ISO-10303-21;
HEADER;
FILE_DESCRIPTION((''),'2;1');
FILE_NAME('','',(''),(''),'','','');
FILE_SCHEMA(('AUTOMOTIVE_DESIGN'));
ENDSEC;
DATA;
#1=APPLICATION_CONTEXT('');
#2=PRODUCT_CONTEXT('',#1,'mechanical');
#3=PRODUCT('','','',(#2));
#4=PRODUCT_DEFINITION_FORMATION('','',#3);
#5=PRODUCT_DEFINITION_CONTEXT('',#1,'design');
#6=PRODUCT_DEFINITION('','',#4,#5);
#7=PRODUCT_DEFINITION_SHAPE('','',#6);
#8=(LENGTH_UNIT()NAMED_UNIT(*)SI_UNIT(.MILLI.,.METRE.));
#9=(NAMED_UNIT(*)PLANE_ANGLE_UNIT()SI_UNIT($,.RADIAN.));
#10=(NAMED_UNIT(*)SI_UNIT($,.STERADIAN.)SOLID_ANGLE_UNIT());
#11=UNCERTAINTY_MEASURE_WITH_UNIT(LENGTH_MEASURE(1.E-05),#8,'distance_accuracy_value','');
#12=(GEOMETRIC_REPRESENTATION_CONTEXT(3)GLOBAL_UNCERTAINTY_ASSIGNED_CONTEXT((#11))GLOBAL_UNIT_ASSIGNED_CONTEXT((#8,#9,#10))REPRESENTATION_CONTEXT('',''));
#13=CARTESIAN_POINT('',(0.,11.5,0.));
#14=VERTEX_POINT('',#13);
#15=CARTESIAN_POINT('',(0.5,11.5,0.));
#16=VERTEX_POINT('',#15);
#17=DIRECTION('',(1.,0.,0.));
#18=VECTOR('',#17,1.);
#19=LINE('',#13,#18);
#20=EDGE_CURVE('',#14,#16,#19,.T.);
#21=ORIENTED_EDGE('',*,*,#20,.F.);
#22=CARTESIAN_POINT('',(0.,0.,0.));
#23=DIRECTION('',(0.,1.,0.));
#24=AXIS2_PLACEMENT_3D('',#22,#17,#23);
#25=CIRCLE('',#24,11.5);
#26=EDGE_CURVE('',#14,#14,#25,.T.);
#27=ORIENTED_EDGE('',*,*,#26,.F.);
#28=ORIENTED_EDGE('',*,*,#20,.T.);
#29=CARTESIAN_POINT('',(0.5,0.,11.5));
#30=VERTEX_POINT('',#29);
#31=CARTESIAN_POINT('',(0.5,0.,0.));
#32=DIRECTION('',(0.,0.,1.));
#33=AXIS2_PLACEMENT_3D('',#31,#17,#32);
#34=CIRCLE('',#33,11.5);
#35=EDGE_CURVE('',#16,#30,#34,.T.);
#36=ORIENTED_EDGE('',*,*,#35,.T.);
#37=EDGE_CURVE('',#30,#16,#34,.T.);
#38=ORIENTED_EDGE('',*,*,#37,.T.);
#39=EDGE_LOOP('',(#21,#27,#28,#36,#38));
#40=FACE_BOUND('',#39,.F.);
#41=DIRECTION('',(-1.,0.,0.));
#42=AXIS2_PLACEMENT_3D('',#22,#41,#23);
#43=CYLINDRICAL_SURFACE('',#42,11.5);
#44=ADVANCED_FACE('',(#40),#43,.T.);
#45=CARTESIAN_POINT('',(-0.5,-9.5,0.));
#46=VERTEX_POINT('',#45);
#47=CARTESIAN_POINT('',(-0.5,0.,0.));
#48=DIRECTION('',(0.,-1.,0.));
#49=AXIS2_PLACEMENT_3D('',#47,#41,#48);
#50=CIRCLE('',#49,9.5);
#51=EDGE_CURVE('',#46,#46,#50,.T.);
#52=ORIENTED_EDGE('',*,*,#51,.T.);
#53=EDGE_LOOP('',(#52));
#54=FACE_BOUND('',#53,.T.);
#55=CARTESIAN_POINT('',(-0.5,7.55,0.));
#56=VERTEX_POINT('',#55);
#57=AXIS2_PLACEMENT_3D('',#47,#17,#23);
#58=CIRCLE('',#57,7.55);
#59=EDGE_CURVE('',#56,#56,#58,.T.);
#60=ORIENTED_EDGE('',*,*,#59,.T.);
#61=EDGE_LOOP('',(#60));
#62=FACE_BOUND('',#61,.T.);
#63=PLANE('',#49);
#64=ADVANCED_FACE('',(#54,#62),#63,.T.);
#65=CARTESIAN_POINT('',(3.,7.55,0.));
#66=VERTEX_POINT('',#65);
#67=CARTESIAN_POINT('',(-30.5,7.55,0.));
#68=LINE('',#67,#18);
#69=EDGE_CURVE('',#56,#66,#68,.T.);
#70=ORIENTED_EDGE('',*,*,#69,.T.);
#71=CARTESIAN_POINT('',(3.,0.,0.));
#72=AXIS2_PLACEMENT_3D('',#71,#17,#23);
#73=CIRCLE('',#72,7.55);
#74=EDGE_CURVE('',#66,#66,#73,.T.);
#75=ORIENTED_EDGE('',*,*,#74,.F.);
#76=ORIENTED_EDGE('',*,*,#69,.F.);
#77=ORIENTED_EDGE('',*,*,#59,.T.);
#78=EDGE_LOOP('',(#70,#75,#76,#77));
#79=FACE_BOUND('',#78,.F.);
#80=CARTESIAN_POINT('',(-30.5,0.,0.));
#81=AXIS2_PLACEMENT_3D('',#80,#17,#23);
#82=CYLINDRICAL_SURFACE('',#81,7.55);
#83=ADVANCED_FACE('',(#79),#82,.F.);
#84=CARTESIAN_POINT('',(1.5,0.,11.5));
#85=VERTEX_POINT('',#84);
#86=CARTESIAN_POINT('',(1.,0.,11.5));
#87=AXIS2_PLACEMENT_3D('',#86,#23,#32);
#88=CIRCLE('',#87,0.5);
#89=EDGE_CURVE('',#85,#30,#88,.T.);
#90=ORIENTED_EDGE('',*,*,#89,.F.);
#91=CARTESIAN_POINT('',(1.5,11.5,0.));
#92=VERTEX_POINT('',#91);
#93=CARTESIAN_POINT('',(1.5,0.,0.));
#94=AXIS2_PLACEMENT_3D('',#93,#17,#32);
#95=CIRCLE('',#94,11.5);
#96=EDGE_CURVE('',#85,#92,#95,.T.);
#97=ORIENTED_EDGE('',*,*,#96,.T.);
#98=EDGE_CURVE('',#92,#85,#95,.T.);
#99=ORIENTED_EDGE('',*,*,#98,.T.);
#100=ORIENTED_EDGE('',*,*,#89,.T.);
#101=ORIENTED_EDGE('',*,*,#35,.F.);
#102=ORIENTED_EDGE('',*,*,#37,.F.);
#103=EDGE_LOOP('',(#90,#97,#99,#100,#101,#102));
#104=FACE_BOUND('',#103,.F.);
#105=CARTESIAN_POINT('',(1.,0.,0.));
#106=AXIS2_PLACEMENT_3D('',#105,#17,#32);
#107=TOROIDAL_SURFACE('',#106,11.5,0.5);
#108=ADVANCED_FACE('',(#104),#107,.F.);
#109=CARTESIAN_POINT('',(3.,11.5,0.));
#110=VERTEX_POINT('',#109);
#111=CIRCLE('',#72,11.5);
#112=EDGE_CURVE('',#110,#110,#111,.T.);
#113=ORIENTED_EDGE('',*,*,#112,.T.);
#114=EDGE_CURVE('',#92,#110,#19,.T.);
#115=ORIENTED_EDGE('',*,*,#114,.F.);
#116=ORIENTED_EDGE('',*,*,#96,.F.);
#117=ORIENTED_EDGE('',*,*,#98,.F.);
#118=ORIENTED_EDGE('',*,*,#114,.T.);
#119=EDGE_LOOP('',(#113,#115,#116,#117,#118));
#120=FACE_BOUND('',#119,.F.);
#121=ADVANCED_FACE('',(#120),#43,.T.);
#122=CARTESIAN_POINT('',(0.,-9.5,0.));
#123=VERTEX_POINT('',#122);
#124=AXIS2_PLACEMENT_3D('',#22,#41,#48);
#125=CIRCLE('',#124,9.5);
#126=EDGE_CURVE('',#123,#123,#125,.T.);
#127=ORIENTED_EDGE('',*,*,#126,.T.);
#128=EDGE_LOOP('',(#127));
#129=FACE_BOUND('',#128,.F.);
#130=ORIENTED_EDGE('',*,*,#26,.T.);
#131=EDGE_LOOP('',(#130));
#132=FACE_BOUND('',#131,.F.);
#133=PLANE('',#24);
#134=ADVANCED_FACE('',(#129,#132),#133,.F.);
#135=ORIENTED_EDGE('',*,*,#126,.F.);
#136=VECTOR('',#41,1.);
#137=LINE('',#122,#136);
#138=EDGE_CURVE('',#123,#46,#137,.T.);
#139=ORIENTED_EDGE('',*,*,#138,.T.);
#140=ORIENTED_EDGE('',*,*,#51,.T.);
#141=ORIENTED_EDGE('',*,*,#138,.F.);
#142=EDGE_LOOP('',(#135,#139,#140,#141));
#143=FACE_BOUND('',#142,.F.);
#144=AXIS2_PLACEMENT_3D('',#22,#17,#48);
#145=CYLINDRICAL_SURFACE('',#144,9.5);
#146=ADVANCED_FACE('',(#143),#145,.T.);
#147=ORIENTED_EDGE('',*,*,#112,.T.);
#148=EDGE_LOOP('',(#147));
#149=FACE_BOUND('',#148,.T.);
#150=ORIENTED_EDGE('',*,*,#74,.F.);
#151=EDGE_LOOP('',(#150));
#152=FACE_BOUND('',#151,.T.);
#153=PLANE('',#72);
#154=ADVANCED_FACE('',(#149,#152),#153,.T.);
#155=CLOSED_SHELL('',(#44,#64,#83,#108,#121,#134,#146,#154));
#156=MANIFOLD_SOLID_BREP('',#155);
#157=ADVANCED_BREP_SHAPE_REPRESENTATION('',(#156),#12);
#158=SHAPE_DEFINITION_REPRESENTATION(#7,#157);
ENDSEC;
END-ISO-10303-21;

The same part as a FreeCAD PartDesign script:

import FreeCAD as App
import Part
import Sketcher
from FreeCAD import Vector
Q = App.Units.Quantity

doc = App.newDocument("Part")
body = doc.addObject("PartDesign::Body", "Body")

# Sketch on YZ plane
sketch1 = doc.addObject("Sketcher::SketchObject", "Sketch")
body.addObject(sketch1)
sketch1.AttachmentSupport = (doc.YZ_Plane, [""])
sketch1.MapMode = "FlatFace"
sketch1.addGeometry(Part.Circle(Vector(0, 0, 0), Vector(0, 0, 1), 12), False)
sketch1.addConstraint(Sketcher.Constraint("Coincident", 0, 3, -1, 1))
sketch1.addConstraint(Sketcher.Constraint("Diameter", 0, Q("23 mm")))
pad1 = doc.addObject("PartDesign::Pad", "Pad")
body.addObject(pad1)
pad1.Profile = sketch1
pad1.Length = 3

# Sketch on YZ plane
sketch2 = doc.addObject("Sketcher::SketchObject", "Sketch001")
body.addObject(sketch2)
sketch2.AttachmentSupport = (doc.YZ_Plane, [""])
sketch2.MapMode = "FlatFace"
sketch2.addGeometry(Part.Circle(Vector(0, 0, 0), Vector(0, 0, 1), 10), False)
sketch2.addConstraint(Sketcher.Constraint("Coincident", 0, 3, -1, 1))
sketch2.addConstraint(Sketcher.Constraint("Diameter", 0, Q("19 mm")))
pad2 = doc.addObject("PartDesign::Pad", "Pad001")
body.addObject(pad2)
pad2.Profile = sketch2
pad2.Length = 0.5
pad2.Reversed = True

# Sketch on YZ plane
sketch3 = doc.addObject("Sketcher::SketchObject", "Sketch002")
body.addObject(sketch3)
sketch3.AttachmentSupport = (doc.YZ_Plane, [""])
sketch3.MapMode = "FlatFace"
sketch3.AttachmentOffset = App.Placement(Vector(0, 0, -0.5), App.Rotation())
sketch3.addGeometry(Part.Circle(Vector(0, 0, 0), Vector(0, 0, 1), 8), False)
sketch3.addConstraint(Sketcher.Constraint("Coincident", 0, 3, -1, 1))
sketch3.addConstraint(Sketcher.Constraint("Diameter", 0, Q("15.1 mm")))
doc.recompute()
hole = doc.addObject("PartDesign::Hole", "Hole")
body.addObject(hole)
hole.Profile = sketch3
hole.ThreadType = "None"
hole.Diameter = 15.1
hole.DepthType = "Dimension"
hole.Depth = 30
hole.DrillPoint = "Angled"
hole.DrillPointAngle = 118
hole.Reversed = True

# Sketch on XZ plane
sketch4 = doc.addObject("Sketcher::SketchObject", "Sketch003")
body.addObject(sketch4)
sketch4.AttachmentSupport = (doc.XZ_Plane, [""])
sketch4.MapMode = "FlatFace"
sketch4.addGeometry(Part.Circle(Vector(1, -11.5, 0), Vector(0, 0, 1), 0.5), False)
sketch4.addConstraint(Sketcher.Constraint("Diameter", 0, Q("1 mm")))
sketch4.addConstraint(Sketcher.Constraint("DistanceX", -1, 1, 0, 3, Q("1 mm")))
sketch4.addConstraint(Sketcher.Constraint("DistanceY", 0, 3, -1, 1, Q("11.5 mm")))

# Sketch on YZ plane
sketch5 = doc.addObject("Sketcher::SketchObject", "Sketch004")
body.addObject(sketch5)
sketch5.AttachmentSupport = (doc.YZ_Plane, [""])
sketch5.MapMode = "FlatFace"
sketch5.addGeometry(Part.Circle(Vector(0, 0, 0), Vector(0, 0, 1), 12), False)
sketch5.addConstraint(Sketcher.Constraint("Coincident", 0, 3, -1, 1))
sketch5.addConstraint(Sketcher.Constraint("Diameter", 0, Q("23 mm")))
doc.recompute()

subtractivepipe = doc.addObject("PartDesign::SubtractivePipe", "SubtractivePipe")
body.addObject(subtractivepipe)
subtractivepipe.Profile = sketch4
subtractivepipe.Spine = (sketch5, ["Edge1"])

doc.recompute()
